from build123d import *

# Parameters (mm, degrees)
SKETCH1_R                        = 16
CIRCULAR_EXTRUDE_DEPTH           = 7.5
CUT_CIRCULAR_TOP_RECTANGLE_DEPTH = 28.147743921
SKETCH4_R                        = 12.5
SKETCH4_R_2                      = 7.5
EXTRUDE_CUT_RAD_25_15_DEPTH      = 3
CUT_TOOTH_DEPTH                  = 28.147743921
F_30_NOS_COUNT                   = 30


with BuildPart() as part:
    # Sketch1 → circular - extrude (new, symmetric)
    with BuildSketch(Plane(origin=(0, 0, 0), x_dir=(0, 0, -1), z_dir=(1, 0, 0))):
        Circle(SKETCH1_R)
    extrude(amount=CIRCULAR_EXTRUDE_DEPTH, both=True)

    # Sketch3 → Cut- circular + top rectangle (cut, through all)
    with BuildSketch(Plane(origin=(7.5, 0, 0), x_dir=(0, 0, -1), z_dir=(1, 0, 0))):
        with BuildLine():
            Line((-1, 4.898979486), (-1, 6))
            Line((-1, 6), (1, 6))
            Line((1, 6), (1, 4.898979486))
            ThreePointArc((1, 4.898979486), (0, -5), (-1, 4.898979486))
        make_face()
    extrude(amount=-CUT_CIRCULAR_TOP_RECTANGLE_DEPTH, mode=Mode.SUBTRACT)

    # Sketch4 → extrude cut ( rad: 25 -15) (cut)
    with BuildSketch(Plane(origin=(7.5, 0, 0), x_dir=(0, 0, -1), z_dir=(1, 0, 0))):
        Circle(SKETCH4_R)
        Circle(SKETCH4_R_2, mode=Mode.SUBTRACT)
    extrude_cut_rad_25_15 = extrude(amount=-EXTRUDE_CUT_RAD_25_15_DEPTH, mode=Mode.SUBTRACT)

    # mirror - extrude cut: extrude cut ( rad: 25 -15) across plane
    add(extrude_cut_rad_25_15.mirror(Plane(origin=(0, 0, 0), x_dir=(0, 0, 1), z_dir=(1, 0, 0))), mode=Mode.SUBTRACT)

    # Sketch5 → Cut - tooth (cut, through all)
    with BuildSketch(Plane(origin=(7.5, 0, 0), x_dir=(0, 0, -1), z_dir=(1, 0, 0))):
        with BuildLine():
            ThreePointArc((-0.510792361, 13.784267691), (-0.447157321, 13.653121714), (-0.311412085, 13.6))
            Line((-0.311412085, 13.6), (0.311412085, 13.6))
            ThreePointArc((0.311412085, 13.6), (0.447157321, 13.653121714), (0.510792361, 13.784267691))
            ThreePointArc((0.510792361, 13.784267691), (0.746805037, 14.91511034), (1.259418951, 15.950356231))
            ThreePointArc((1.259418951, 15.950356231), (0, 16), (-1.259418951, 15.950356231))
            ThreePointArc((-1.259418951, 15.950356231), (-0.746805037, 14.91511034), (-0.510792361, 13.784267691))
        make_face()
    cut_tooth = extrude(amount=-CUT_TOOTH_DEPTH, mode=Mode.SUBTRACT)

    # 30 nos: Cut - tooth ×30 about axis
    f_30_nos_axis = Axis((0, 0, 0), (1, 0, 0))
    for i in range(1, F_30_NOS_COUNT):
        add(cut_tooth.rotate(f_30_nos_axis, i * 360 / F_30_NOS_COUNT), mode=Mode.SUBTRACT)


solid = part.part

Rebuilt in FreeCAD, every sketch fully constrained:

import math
import FreeCAD as App
import Part
import Sketcher

V = App.Vector

doc = App.newDocument("Part")
params = doc.addObject("Spreadsheet::Sheet", "Params")
for row, (alias, value) in enumerate([
    ("sketch1_diameter", "32 mm"),
    ("pad1_length", "15 mm"),
    ("sketch2_radius", "5 mm"),
    ("sketch2_height", "2 mm"),
    ("sketch3_diameter", "25 mm"),
    ("sketch3_diameter2", "15 mm"),
    ("pocket2_length", "3 mm"),
    ("sketch4_radius", "16 mm"),
    ("sketch4_radius2", "0.2 mm"),
    ("sketch4_radius3", "4.56 mm"),
], start=1):
    params.set(f"A{row}", alias)
    params.set(f"B{row}", "=" + value)
    params.setAlias(f"B{row}", alias)

body = doc.addObject("PartDesign::Body", "Body")

# Sketch on YZ plane
sketch1 = doc.addObject("Sketcher::SketchObject", "Sketch")
body.addObject(sketch1)
sketch1.AttachmentSupport = (doc.YZ_Plane, [""])
sketch1.MapMode = "FlatFace"
sketch1.addGeometry(Part.Circle(V(0, 0, 0), V(0, 0, 1), 16), False)
sketch1.addConstraint([
    Sketcher.Constraint("Coincident", 0, 3, -1, 1),
    Sketcher.Constraint("Diameter", 0, 32.0),
])
sketch1.setExpression("Constraints[1]", "Params.sketch1_diameter")
pad1 = doc.addObject("PartDesign::Pad", "Pad")
body.addObject(pad1)
pad1.Profile = sketch1
pad1.setExpression("Length", "Params.pad1_length")
pad1.Midplane = True

# Sketch on YZ plane
sketch2 = doc.addObject("Sketcher::SketchObject", "Sketch001")
body.addObject(sketch2)
sketch2.AttachmentSupport = (doc.YZ_Plane, [""])
sketch2.MapMode = "FlatFace"
sketch2.AttachmentOffset = App.Placement(V(0, 0, 7.5), App.Rotation())
sketch2.addGeometry([
    Part.LineSegment(V(6, 1, 0), V(4.9, 1, 0)),
    Part.ArcOfCircle(Part.Circle(V(0, 0, 0), V(0, 0, 1), 5), math.radians(12), math.radians(348)),
    Part.LineSegment(V(4.9, -1, 0), V(6, -1, 0)),
    Part.LineSegment(V(6, -1, 0), V(6, 1, 0)),
], False)
sketch2.addConstraint([
    Sketcher.Constraint("Coincident", 0, 2, 1, 1),
    Sketcher.Constraint("Coincident", 1, 2, 2, 1),
    Sketcher.Constraint("Coincident", 2, 2, 3, 1),
    Sketcher.Constraint("Coincident", 3, 2, 0, 1),
    Sketcher.Constraint("Horizontal", 0),
    Sketcher.Constraint("Horizontal", 2),
    Sketcher.Constraint("Vertical", 3),
    Sketcher.Constraint("Coincident", 1, 3, -1, 1),
    Sketcher.Constraint("Vertical", 0, 2, 1, 2),
    Sketcher.Constraint("Radius", 1, 5.0),
    Sketcher.Constraint("DistanceY", 3, 1, 3, 2, 2.0),
    Sketcher.Constraint("DistanceX", -1, 1, 2, 2, 6.0),
])
sketch2.setExpression("Constraints[9]", "Params.sketch2_radius")
sketch2.setExpression("Constraints[10]", "Params.sketch2_height")
pocket1 = doc.addObject("PartDesign::Pocket", "Pocket")
body.addObject(pocket1)
pocket1.Profile = sketch2
pocket1.Type = "ThroughAll"

# Sketch on YZ plane
sketch3 = doc.addObject("Sketcher::SketchObject", "Sketch002")
body.addObject(sketch3)
sketch3.AttachmentSupport = (doc.YZ_Plane, [""])
sketch3.MapMode = "FlatFace"
sketch3.AttachmentOffset = App.Placement(V(0, 0, 7.5), App.Rotation())
sketch3.addGeometry([
    Part.Circle(V(0, 0, 0), V(0, 0, 1), 12),
    Part.Circle(V(0, 0, 0), V(0, 0, 1), 8),
], False)
sketch3.addConstraint([
    Sketcher.Constraint("Coincident", 0, 3, -1, 1),
    Sketcher.Constraint("Coincident", 1, 3, -1, 1),
    Sketcher.Constraint("Diameter", 0, 25.0),
    Sketcher.Constraint("Diameter", 1, 15.0),
])
sketch3.setExpression("Constraints[2]", "Params.sketch3_diameter")
sketch3.setExpression("Constraints[3]", "Params.sketch3_diameter2")
pocket2 = doc.addObject("PartDesign::Pocket", "Pocket001")
body.addObject(pocket2)
pocket2.Profile = sketch3
pocket2.setExpression("Length", "Params.pocket2_length")
doc.recompute()

mirrored = doc.addObject("PartDesign::Mirrored", "Mirrored")
body.addObject(mirrored)
mirrored.Originals = [pocket2]
mirrored.MirrorPlane = (doc.YZ_Plane, [""])
body.Tip = mirrored

# Sketch on YZ plane
sketch4 = doc.addObject("Sketcher::SketchObject", "Sketch003")
body.addObject(sketch4)
sketch4.AttachmentSupport = (doc.YZ_Plane, [""])
sketch4.MapMode = "FlatFace"
sketch4.AttachmentOffset = App.Placement(V(0, 0, 7.5), App.Rotation())
sketch4.addGeometry([
    Part.ArcOfCircle(Part.Circle(V(13.8, 0.31, 0), V(0, 0, 1), 0.2), math.radians(95), math.radians(180)),  # 0
    Part.LineSegment(V(13.6, 0.31, 0), V(13.6, -0.31, 0)),  # 1
    Part.ArcOfCircle(Part.Circle(V(13.8, -0.31, 0), V(0, 0, 1), 0.2), math.radians(180), math.radians(265)),  # 2
    Part.ArcOfCircle(Part.Circle(V(13.43, -5.06, 0), V(0, 0, 1), 4.56), math.radians(56), math.radians(85)),  # 3
    Part.ArcOfCircle(Part.Circle(V(0, 0, 0), V(0, 0, 1), 16), math.radians(-4.51), math.radians(4.51)),  # 4
    Part.ArcOfCircle(Part.Circle(V(13.43, 5.06, 0), V(0, 0, 1), 4.56), math.radians(-85), math.radians(-56)),  # 5
], False)
sketch4.addConstraint([
    Sketcher.Constraint("Tangent", 0, 2, 1, 1),
    Sketcher.Constraint("Tangent", 1, 2, 2, 1),
    Sketcher.Constraint("Tangent", 2, 2, 3, 2),
    Sketcher.Constraint("Coincident", 3, 1, 4, 1),
    Sketcher.Constraint("Coincident", 4, 2, 5, 2),
    Sketcher.Constraint("Tangent", 5, 1, 0, 1),
    Sketcher.Constraint("Vertical", 1),
    Sketcher.Constraint("Coincident", 4, 3, -1, 1),
    Sketcher.Constraint("Equal", 0, 2),
    Sketcher.Constraint("Equal", 3, 5),
    Sketcher.Constraint("Symmetric", 3, 3, 5, 3, -1),
    Sketcher.Constraint("Radius", 4, 16.0),
    Sketcher.Constraint("Radius", 0, 0.2),
    Sketcher.Constraint("Radius", 3, 4.56),
    Sketcher.Constraint("DistanceX", -1, 1, 0, 3, 13.8),
    Sketcher.Constraint("DistanceY", 1, 2, 1, 1, 0.622824),
    Sketcher.Constraint("DistanceX", -1, 1, 3, 3, 13.425571),
])
sketch4.setExpression("Constraints[11]", "Params.sketch4_radius")
sketch4.setExpression("Constraints[12]", "Params.sketch4_radius2")
sketch4.setExpression("Constraints[13]", "Params.sketch4_radius3")
pocket3 = doc.addObject("PartDesign::Pocket", "Pocket002")
body.addObject(pocket3)
pocket3.Profile = sketch4
pocket3.Type = "ThroughAll"
doc.recompute()

polarpattern = doc.addObject("PartDesign::PolarPattern", "PolarPattern")
body.addObject(polarpattern)
polarpattern.Originals = [pocket3]
polarpattern.Axis = (doc.X_Axis, [""])
polarpattern.Angle = 360
polarpattern.Occurrences = 30
body.Tip = polarpattern

doc.recompute()
